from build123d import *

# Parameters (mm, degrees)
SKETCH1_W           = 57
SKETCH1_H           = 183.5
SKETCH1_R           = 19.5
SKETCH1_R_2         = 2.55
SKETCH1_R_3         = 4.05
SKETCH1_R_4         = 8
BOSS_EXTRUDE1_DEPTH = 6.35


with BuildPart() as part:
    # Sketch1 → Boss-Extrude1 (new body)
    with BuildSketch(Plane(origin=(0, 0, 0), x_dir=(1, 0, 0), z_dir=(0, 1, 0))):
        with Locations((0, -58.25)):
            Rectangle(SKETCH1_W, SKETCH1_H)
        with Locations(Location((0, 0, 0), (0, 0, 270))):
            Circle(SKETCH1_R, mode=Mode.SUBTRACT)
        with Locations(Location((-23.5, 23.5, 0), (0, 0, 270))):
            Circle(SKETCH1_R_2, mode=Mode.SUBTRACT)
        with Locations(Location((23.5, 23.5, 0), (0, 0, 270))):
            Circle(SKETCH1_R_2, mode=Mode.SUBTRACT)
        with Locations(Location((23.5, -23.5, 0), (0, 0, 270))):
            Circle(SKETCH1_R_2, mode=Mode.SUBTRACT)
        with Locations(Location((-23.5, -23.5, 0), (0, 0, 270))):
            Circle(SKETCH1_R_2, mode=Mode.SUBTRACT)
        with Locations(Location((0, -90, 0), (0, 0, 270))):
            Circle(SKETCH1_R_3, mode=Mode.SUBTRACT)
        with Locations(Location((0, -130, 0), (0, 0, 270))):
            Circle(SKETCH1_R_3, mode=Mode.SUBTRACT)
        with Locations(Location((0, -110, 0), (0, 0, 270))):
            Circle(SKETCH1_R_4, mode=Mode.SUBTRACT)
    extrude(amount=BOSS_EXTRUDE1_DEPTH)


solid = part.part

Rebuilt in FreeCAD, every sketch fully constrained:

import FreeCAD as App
import Part
import Sketcher
Q = App.Units.Quantity

doc = App.newDocument("Part")
body = doc.addObject("PartDesign::Body", "Body")

sketch1 = body.newObject("Sketcher::SketchObject", "Sketch")
sketch1.AttachmentSupport = (doc.getObject("XZ_Plane"), [""])
sketch1.MapMode = "FlatFace"
sketch1.addGeometry([
    Part.LineSegment(App.Vector(-28.5, -33.5, 0), App.Vector(-28.5, 150, 0)),
    Part.LineSegment(App.Vector(-28.5, 150, 0), App.Vector(28.5, 150, 0)),
    Part.LineSegment(App.Vector(28.5, 150, 0), App.Vector(28.5, -33.5, 0)),
    Part.LineSegment(App.Vector(28.5, -33.5, 0), App.Vector(-28.5, -33.5, 0)),
    Part.Circle(App.Vector(0, 130, 0), App.Vector(0, 0, 1), 4),
    Part.Circle(App.Vector(0, 110, 0), App.Vector(0, 0, 1), 8),
    Part.Circle(App.Vector(0, 90, 0), App.Vector(0, 0, 1), 4),
    Part.Circle(App.Vector(-23.5, 23.5, 0), App.Vector(0, 0, 1), 2.5),
    Part.Circle(App.Vector(-23.5, -23.5, 0), App.Vector(0, 0, 1), 2.5),
    Part.Circle(App.Vector(23.5, 23.5, 0), App.Vector(0, 0, 1), 2.5),
    Part.Circle(App.Vector(0, 0, 0), App.Vector(0, 0, 1), 19.5),
    Part.Circle(App.Vector(23.5, -23.5, 0), App.Vector(0, 0, 1), 2.5),
], False)
sketch1.addConstraint([
    Sketcher.Constraint("Coincident", 0, 2, 1, 1),
    Sketcher.Constraint("Coincident", 1, 2, 2, 1),
    Sketcher.Constraint("Coincident", 2, 2, 3, 1),
    Sketcher.Constraint("Coincident", 3, 2, 0, 1),
    Sketcher.Constraint("Vertical", 0),
    Sketcher.Constraint("Horizontal", 1),
    Sketcher.Constraint("Vertical", 2),
    Sketcher.Constraint("Horizontal", 3),
    Sketcher.Constraint("Coincident", 10, 3, -1, 1),
    Sketcher.Constraint("Equal", 4, 6),
    Sketcher.Constraint("Equal", 7, 8),
    Sketcher.Constraint("Equal", 8, 9),
    Sketcher.Constraint("Equal", 9, 11),
    Sketcher.Constraint("Symmetric", 8, 3, 9, 3, -1, 1),
    Sketcher.Constraint("Symmetric", 7, 3, 11, 3, -1, 1),
    Sketcher.Constraint("Symmetric", 7, 3, 9, 3, -2),
    Sketcher.Constraint("PointOnObject", 4, 3, -2),
    Sketcher.Constraint("PointOnObject", 5, 3, -2),
    Sketcher.Constraint("PointOnObject", 6, 3, -2),
    Sketcher.Constraint("Diameter", 5, Q("16 mm")),
    Sketcher.Constraint("Diameter", 10, Q("39 mm")),
    Sketcher.Constraint("Diameter", 4, Q("8.1 mm")),
    Sketcher.Constraint("Diameter", 7, Q("5.1 mm")),
    Sketcher.Constraint("DistanceX", 1, 1, 1, 2, Q("57 mm")),
    Sketcher.Constraint("DistanceY", 0, 1, 0, 2, Q("183.5 mm")),
    Sketcher.Constraint("DistanceY", -1, 1, 4, 3, Q("130 mm")),
    Sketcher.Constraint("DistanceY", -1, 1, 5, 3, Q("110 mm")),
    Sketcher.Constraint("DistanceY", -1, 1, 6, 3, Q("90 mm")),
    Sketcher.Constraint("DistanceY", -1, 1, 0, 2, Q("150 mm")),
    Sketcher.Constraint("DistanceY", 8, 3, 7, 3, Q("47 mm")),
    Sketcher.Constraint("DistanceX", 7, 3, 9, 3, Q("47 mm")),
    Sketcher.Constraint("DistanceX", 0, 2, 7, 3, Q("5 mm")),
])
pad1 = body.newObject("PartDesign::Pad", "Pad")
pad1.Profile = sketch1
pad1.Length = 6.35
pad1.Reversed = True

doc.recompute()
